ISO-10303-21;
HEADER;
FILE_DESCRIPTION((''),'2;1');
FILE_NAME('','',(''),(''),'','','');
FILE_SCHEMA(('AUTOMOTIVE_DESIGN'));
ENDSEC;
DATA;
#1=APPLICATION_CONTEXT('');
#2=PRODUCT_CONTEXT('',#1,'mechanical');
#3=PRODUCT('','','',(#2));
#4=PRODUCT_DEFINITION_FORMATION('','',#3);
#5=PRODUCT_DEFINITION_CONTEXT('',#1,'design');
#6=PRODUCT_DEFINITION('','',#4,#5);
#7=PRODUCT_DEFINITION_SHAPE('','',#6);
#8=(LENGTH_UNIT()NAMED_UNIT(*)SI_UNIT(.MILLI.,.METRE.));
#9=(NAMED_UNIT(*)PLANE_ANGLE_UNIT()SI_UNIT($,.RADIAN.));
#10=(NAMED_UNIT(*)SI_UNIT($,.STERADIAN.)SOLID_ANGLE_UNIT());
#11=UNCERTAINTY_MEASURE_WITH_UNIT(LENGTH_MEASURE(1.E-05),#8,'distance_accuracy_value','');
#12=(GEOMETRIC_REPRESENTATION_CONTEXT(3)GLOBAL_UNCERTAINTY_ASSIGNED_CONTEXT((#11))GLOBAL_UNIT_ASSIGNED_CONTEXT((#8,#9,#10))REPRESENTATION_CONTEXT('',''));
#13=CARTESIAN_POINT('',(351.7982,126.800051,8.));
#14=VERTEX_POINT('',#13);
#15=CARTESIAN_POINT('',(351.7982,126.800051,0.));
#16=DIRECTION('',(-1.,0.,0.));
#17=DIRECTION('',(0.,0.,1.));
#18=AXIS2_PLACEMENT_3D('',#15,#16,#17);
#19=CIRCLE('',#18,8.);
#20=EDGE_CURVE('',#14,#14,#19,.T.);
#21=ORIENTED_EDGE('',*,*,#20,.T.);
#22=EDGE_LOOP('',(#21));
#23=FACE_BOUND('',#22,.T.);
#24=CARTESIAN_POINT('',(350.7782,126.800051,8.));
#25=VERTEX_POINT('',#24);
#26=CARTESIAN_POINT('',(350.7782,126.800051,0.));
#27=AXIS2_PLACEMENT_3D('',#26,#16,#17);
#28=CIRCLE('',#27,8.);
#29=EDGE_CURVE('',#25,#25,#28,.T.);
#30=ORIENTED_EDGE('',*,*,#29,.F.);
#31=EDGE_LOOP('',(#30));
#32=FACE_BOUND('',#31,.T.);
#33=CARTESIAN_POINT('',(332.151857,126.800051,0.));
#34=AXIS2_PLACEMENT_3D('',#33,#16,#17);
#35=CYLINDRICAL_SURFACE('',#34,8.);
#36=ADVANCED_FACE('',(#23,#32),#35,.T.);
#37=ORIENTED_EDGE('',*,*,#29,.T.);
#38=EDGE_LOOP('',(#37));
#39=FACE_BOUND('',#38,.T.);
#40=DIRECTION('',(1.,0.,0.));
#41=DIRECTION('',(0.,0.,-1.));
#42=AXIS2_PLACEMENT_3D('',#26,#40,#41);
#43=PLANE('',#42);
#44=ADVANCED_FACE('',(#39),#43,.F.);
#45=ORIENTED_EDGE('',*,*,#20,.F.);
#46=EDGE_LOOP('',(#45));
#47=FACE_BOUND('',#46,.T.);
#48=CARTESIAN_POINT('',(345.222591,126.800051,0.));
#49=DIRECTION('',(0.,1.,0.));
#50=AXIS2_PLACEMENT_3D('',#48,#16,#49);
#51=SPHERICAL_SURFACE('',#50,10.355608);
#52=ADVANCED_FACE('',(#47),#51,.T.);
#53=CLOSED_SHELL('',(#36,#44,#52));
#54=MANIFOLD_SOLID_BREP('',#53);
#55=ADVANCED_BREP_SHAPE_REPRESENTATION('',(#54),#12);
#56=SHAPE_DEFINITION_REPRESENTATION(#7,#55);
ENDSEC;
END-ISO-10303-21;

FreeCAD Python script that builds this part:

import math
import FreeCAD as App
import Part
import Sketcher

V = App.Vector

doc = App.newDocument("Part")
body = doc.addObject("PartDesign::Body", "Body")

sketch1 = body.newObject("Sketcher::SketchObject", "Sketch")
sketch1.AttachmentSupport = (doc.getObject("XY_Plane"), [""])
sketch1.MapMode = "FlatFace"
sketch1.addGeometry([
    Part.LineSegment(V(350.8, 134.8, 0), V(350.8, 126.8, 0)),
    Part.LineSegment(V(350.8, 126.8, 0), V(355.6, 126.8, 0)),
    Part.ArcOfCircle(Part.Circle(V(345.2, 126.8, 0), V(0, 0, 1), 10.4), math.radians(0), math.radians(51)),
    Part.LineSegment(V(351.8, 134.8, 0), V(350.8, 134.8, 0)),
], False)
sketch1.addGeometry(Part.LineSegment(V(345.2, 126.8, 0), V(355.6, 126.8, 0)), True)
sketch1.addConstraint([
    Sketcher.Constraint("Coincident", 0, 2, 1, 1),
    Sketcher.Constraint("Coincident", 1, 2, 2, 1),
    Sketcher.Constraint("Coincident", 2, 2, 3, 1),
    Sketcher.Constraint("Coincident", 3, 2, 0, 1),
    Sketcher.Constraint("Vertical", 0),
    Sketcher.Constraint("Horizontal", 1),
    Sketcher.Constraint("Horizontal", 3),
    Sketcher.Constraint("Horizontal", 4),
    Sketcher.Constraint("Coincident", 4, 1, 2, 3),
    Sketcher.Constraint("Coincident", 4, 2, 1, 2),
    Sketcher.Constraint("DistanceY", 0, 2, 0, 1, 8.0),
    Sketcher.Constraint("DistanceX", 1, 1, 1, 2, 4.8),
    Sketcher.Constraint("DistanceX", 3, 2, 3, 1, 1.02),
    Sketcher.Constraint("DistanceX", -1, 1, 0, 2, 350.7782),
    Sketcher.Constraint("DistanceY", -1, 1, 2, 3, 126.800051),
])
revolution = body.newObject("PartDesign::Revolution", "Revolution")
revolution.Profile = sketch1
revolution.ReferenceAxis = (sketch1, ["Axis0"])
revolution.Angle = 360

doc.recompute()
